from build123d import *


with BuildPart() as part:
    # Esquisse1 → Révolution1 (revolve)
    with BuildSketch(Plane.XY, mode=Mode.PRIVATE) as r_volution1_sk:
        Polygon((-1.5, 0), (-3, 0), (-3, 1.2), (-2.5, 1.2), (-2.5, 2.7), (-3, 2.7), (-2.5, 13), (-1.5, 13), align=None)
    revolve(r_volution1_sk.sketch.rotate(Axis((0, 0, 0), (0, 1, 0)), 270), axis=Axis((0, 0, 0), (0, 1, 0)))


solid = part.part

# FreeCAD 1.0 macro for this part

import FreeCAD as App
import Part
import Sketcher
from FreeCAD import Vector


def add_polygon(sketch, points):
    """Adds a closed chain of lines whose ends are joined by coincident constraints."""
    first, n = sketch.GeometryCount, len(points)
    for a, b in zip(points, points[1:] + points[:1]):
        sketch.addGeometry(Part.LineSegment(App.Vector(*a, 0), App.Vector(*b, 0)), False)
    for i in range(n):
        sketch.addConstraint(Sketcher.Constraint("Coincident", first + i, 2, first + (i + 1) % n, 1))

doc = App.newDocument("Part")
body = doc.addObject("PartDesign::Body", "Body")

# Sketch on XY plane
sketch1 = body.newObject("Sketcher::SketchObject", "Sketch")
sketch1.AttachmentSupport = (doc.getObject("XY_Plane"), [""])
sketch1.MapMode = "FlatFace"
add_polygon(sketch1, [(-3, 0), (-1.5, 0), (-1.5, 13), (-2.5, 13), (-3, 2.7), (-2.5, 2.7), (-2.5, 1.2), (-3, 1.2)])  # lines 0-7
sketch1.addConstraint([
    Sketcher.Constraint("Horizontal", 0),
    Sketcher.Constraint("Vertical", 1),
    Sketcher.Constraint("Horizontal", 2),
    Sketcher.Constraint("Horizontal", 4),
    Sketcher.Constraint("Vertical", 5),
    Sketcher.Constraint("Horizontal", 6),
    Sketcher.Constraint("Vertical", 7),
    Sketcher.Constraint("PointOnObject", 0, 2, -1),
    Sketcher.Constraint("Vertical", 2, 2, 4, 2),
    Sketcher.Constraint("Vertical", 3, 2, 6, 2),
    Sketcher.Constraint("Equal", 0, 5),
    Sketcher.Constraint("DistanceX", 2, 2, 2, 1, 1.0),
    Sketcher.Constraint("DistanceY", 1, 1, 1, 2, 13.0),
    Sketcher.Constraint("DistanceX", 0, 1, 0, 2, 1.5),
    Sketcher.Constraint("DistanceY", 7, 2, 7, 1, 1.2),
    Sketcher.Constraint("DistanceX", 3, 2, -1, 1, 3.0),
])
revolution = body.newObject("PartDesign::Revolution", "Revolution")
revolution.Profile = sketch1
revolution.ReferenceAxis = (sketch1, ["V_Axis"])
revolution.Angle = 360

doc.recompute()
